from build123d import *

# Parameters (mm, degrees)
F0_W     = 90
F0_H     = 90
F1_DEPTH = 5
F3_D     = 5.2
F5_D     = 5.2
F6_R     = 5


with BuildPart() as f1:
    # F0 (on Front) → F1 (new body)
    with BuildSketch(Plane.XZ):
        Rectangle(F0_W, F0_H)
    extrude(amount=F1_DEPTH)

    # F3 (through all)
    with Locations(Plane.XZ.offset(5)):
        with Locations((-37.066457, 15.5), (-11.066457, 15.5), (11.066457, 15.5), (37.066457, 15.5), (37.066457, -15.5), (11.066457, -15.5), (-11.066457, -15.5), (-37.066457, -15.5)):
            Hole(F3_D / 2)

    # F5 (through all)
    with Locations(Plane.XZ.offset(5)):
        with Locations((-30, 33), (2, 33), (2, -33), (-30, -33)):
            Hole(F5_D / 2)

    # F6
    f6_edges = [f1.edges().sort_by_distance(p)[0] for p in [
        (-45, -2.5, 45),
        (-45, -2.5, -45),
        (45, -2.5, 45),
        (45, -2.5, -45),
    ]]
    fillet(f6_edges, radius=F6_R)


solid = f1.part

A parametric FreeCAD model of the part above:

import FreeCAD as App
import Part
import Sketcher


def edges_at(feature, points):
    """Names of the edges that pass closest to the given points."""
    edges = feature.Shape.Edges
    near = lambda p: min(range(len(edges)), key=lambda i: edges[i].distToShape(Part.Vertex(*p))[0])
    return sorted({f"Edge{near(p) + 1}" for p in points})


def add_polygon(sketch, points):
    """Adds a closed chain of lines whose ends are joined by coincident constraints."""
    first, n = sketch.GeometryCount, len(points)
    for a, b in zip(points, points[1:] + points[:1]):
        sketch.addGeometry(Part.LineSegment(App.Vector(*a, 0), App.Vector(*b, 0)), False)
    for i in range(n):
        sketch.addConstraint(Sketcher.Constraint("Coincident", first + i, 2, first + (i + 1) % n, 1))

doc = App.newDocument("Part")
body = doc.addObject("PartDesign::Body", "Body")

# Sketch on XZ plane
sketch1 = doc.addObject("Sketcher::SketchObject", "Sketch")
body.addObject(sketch1)
sketch1.AttachmentSupport = (doc.XZ_Plane, [""])
sketch1.MapMode = "FlatFace"
add_polygon(sketch1, [(-45, 45), (-45, -45), (45, -45), (45, 45)])  # lines 0-3
sketch1.addConstraint([
    Sketcher.Constraint("Vertical", 0),
    Sketcher.Constraint("Horizontal", 1),
    Sketcher.Constraint("Vertical", 2),
    Sketcher.Constraint("Horizontal", 3),
    Sketcher.Constraint("Symmetric", 0, 2, 2, 2, -1, 1),
    Sketcher.Constraint("Equal", 3, 0),
    Sketcher.Constraint("DistanceX", 1, 1, 1, 2, 90.0),
])
pad1 = doc.addObject("PartDesign::Pad", "Pad")
body.addObject(pad1)
pad1.Profile = sketch1
pad1.Length = 5

# Sketch on XZ plane
sketch2 = doc.addObject("Sketcher::SketchObject", "Sketch001")
body.addObject(sketch2)
sketch2.AttachmentSupport = (doc.XZ_Plane, [""])
sketch2.MapMode = "FlatFace"
sketch2.AttachmentOffset = App.Placement(App.Vector(0, 0, 5), App.Rotation())
sketch2.addGeometry([
    Part.Circle(App.Vector(-37.1, 15.5, 0), App.Vector(0, 0, 1), 2.6),  # 0
    Part.Circle(App.Vector(-11.1, 15.5, 0), App.Vector(0, 0, 1), 2.6),  # 1
    Part.Circle(App.Vector(11.1, 15.5, 0), App.Vector(0, 0, 1), 2.6),  # 2
    Part.Circle(App.Vector(37.1, 15.5, 0), App.Vector(0, 0, 1), 2.6),  # 3
    Part.Circle(App.Vector(37.1, -15.5, 0), App.Vector(0, 0, 1), 2.6),  # 4
    Part.Circle(App.Vector(11.1, -15.5, 0), App.Vector(0, 0, 1), 2.6),  # 5
    Part.Circle(App.Vector(-11.1, -15.5, 0), App.Vector(0, 0, 1), 2.6),  # 6
    Part.Circle(App.Vector(-37.1, -15.5, 0), App.Vector(0, 0, 1), 2.6),  # 7
], False)
sketch2.addConstraint([
    Sketcher.Constraint("Equal", 0, 1),
    Sketcher.Constraint("Equal", 1, 2),
    Sketcher.Constraint("Equal", 2, 3),
    Sketcher.Constraint("Equal", 3, 4),
    Sketcher.Constraint("Equal", 4, 5),
    Sketcher.Constraint("Equal", 5, 6),
    Sketcher.Constraint("Equal", 6, 7),
    Sketcher.Constraint("Symmetric", 0, 3, 4, 3, -1, 1),
    Sketcher.Constraint("Symmetric", 1, 3, 5, 3, -1, 1),
    Sketcher.Constraint("Symmetric", 2, 3, 6, 3, -1, 1),
    Sketcher.Constraint("Symmetric", 3, 3, 7, 3, -1, 1),
    Sketcher.Constraint("Symmetric", 1, 3, 2, 3, -2),
    Sketcher.Constraint("Symmetric", 0, 3, 3, 3, -2),
    Sketcher.Constraint("Horizontal", 0, 3, 1, 3),
    Sketcher.Constraint("Diameter", 0, 5.2),
    Sketcher.Constraint("DistanceX", 0, 3, 1, 3, 26.0),
    Sketcher.Constraint("DistanceY", 4, 3, 3, 3, 31.0),
    Sketcher.Constraint("DistanceX", 0, 3, -1, 1, 37.066457),
])
doc.recompute()
hole = doc.addObject("PartDesign::Hole", "Hole")
body.addObject(hole)
hole.Profile = sketch2
hole.ThreadType = "None"
hole.Diameter = 5.2
hole.DepthType = "ThroughAll"

# Sketch on XZ plane
sketch3 = doc.addObject("Sketcher::SketchObject", "Sketch002")
body.addObject(sketch3)
sketch3.AttachmentSupport = (doc.XZ_Plane, [""])
sketch3.MapMode = "FlatFace"
sketch3.AttachmentOffset = App.Placement(App.Vector(0, 0, 5), App.Rotation())
sketch3.addGeometry([
    Part.Circle(App.Vector(-30, 33, 0), App.Vector(0, 0, 1), 2.6),
    Part.Circle(App.Vector(2, 33, 0), App.Vector(0, 0, 1), 2.6),
    Part.Circle(App.Vector(2, -33, 0), App.Vector(0, 0, 1), 2.6),
    Part.Circle(App.Vector(-30, -33, 0), App.Vector(0, 0, 1), 2.6),
], False)
sketch3.addConstraint([
    Sketcher.Constraint("Equal", 0, 1),
    Sketcher.Constraint("Equal", 1, 2),
    Sketcher.Constraint("Equal", 2, 3),
    Sketcher.Constraint("Symmetric", 1, 3, 2, 3, -1),
    Sketcher.Constraint("Symmetric", 0, 3, 3, 3, -1),
    Sketcher.Constraint("Horizontal", 0, 3, 1, 3),
    Sketcher.Constraint("Diameter", 0, 5.2),
    Sketcher.Constraint("DistanceX", 0, 3, -1, 1, 30.0),
    Sketcher.Constraint("DistanceY", -1, 1, 0, 3, 33.0),
    Sketcher.Constraint("DistanceX", -1, 1, 1, 3, 2.0),
])
doc.recompute()
hole2 = doc.addObject("PartDesign::Hole", "Hole001")
body.addObject(hole2)
hole2.Profile = sketch3
hole2.ThreadType = "None"
hole2.Diameter = 5.2
hole2.DepthType = "ThroughAll"
doc.recompute()

fillet = doc.addObject("PartDesign::Fillet", "Fillet")
body.addObject(fillet)
fillet.Base = (hole2, edges_at(hole2, [
    (-45, -2.5, 45),
    (-45, -2.5, -45),
    (45, -2.5, 45),
    (45, -2.5, -45),
]))
fillet.Radius = 5

doc.recompute()
